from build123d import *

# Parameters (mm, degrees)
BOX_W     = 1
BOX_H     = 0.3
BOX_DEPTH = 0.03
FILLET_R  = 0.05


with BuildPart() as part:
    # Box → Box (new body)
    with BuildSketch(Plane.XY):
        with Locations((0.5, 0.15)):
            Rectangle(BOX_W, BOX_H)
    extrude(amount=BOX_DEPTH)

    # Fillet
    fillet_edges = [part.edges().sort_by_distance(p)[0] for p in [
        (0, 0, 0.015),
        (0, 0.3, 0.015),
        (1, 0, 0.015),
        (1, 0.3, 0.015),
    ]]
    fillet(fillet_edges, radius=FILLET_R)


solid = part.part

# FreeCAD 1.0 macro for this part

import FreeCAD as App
import Part
import Sketcher

V = App.Vector


def edges_at(feature, points):
    """Names of the edges that pass closest to the given points."""
    edges = feature.Shape.Edges
    near = lambda p: min(range(len(edges)), key=lambda i: edges[i].distToShape(Part.Vertex(*p))[0])
    return sorted({f"Edge{near(p) + 1}" for p in points})


def add_polygon(sketch, points):
    """Adds a closed chain of lines whose ends are joined by coincident constraints."""
    first, n = sketch.GeometryCount, len(points)
    for a, b in zip(points, points[1:] + points[:1]):
        sketch.addGeometry(Part.LineSegment(App.Vector(*a, 0), App.Vector(*b, 0)), False)
    for i in range(n):
        sketch.addConstraint(Sketcher.Constraint("Coincident", first + i, 2, first + (i + 1) % n, 1))

doc = App.newDocument("Part")
body = doc.addObject("PartDesign::Body", "Body")

sketch1 = body.newObject("Sketcher::SketchObject", "Sketch")
sketch1.AttachmentSupport = (doc.getObject("XY_Plane"), [""])
sketch1.MapMode = "FlatFace"
add_polygon(sketch1, [(0, 0.3), (0, 0), (1, 0), (1, 0.3)])
sketch1.addConstraint([
    Sketcher.Constraint("Vertical", 0),
    Sketcher.Constraint("Horizontal", 1),
    Sketcher.Constraint("Vertical", 2),
    Sketcher.Constraint("Horizontal", 3),
    Sketcher.Constraint("Coincident", 0, 2, -1, 1),
    Sketcher.Constraint("DistanceX", 1, 1, 1, 2, 1.0),
    Sketcher.Constraint("DistanceY", 0, 2, 0, 1, 0.3),
])
pad1 = body.newObject("PartDesign::Pad", "Pad")
pad1.Profile = sketch1
pad1.Length = 0.03
doc.recompute()

fillet = body.newObject("PartDesign::Fillet", "Fillet")
fillet.Base = (pad1, edges_at(pad1, [
    (0, 0, 0.015),
    (0, 0.3, 0.015),
    (1, 0, 0.015),
    (1, 0.3, 0.015),
]))
fillet.Radius = 0.05

doc.recompute()
